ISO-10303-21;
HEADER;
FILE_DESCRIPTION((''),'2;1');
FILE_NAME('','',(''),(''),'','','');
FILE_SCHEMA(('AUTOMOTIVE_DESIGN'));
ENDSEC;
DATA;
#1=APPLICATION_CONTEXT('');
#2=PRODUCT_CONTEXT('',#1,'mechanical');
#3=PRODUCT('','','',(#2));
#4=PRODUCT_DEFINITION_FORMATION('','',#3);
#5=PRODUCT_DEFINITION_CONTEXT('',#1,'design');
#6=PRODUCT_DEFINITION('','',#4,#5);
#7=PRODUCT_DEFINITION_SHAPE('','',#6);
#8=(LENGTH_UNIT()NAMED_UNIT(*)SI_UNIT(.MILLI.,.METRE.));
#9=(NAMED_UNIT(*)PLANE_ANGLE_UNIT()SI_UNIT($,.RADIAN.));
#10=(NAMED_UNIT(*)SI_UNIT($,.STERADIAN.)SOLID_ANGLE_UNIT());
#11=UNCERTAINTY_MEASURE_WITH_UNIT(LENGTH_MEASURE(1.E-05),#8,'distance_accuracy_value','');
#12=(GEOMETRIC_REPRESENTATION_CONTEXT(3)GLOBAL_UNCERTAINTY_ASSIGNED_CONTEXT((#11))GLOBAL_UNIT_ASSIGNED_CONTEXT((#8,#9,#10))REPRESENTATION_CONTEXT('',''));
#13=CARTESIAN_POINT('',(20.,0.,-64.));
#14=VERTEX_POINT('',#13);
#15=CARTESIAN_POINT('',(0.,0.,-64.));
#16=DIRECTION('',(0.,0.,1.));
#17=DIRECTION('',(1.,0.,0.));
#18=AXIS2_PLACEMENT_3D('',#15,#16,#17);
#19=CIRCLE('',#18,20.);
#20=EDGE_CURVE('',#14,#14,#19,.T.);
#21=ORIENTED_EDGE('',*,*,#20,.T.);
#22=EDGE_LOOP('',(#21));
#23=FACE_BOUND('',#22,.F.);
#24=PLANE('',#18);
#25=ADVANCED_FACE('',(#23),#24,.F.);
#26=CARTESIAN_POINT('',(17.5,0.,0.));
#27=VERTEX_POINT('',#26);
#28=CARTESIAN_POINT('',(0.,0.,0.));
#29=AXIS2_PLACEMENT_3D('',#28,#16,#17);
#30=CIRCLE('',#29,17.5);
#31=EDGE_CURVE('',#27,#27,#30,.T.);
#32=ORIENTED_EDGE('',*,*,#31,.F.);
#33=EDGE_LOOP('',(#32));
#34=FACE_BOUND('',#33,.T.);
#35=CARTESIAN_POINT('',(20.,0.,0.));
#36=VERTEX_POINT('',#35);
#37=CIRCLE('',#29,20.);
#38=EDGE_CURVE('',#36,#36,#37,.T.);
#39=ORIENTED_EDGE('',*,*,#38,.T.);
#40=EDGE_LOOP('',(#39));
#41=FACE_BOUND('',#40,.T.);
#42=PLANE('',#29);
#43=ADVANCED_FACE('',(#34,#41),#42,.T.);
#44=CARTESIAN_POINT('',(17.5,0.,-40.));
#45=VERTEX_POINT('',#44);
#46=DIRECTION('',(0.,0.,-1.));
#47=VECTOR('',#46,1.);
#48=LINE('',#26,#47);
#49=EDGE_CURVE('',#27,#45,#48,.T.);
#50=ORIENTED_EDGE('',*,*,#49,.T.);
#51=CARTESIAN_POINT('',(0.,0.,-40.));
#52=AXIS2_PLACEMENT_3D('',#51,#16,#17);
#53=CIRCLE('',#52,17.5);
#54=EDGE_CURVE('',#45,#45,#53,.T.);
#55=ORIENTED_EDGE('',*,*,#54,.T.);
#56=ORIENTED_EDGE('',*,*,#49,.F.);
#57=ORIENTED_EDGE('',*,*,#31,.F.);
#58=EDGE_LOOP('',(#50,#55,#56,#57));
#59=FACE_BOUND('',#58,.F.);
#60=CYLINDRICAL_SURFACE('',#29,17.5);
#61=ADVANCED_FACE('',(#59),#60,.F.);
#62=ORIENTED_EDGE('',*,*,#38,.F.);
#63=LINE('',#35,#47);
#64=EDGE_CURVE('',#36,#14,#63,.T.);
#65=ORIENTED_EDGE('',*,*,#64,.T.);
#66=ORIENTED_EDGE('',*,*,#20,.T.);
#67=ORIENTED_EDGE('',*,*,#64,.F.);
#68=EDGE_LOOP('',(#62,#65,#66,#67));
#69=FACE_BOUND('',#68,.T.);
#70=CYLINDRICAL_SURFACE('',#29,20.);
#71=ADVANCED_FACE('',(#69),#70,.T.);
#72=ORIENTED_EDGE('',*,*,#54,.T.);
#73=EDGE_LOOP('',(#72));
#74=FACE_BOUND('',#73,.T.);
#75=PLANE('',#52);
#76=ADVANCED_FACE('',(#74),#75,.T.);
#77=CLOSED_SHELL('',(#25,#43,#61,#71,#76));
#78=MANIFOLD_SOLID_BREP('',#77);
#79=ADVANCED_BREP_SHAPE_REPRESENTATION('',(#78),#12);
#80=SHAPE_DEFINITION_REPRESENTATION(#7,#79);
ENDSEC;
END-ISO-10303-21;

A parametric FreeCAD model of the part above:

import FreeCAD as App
import Part
import Sketcher
Q = App.Units.Quantity

doc = App.newDocument("Part")
body = doc.addObject("PartDesign::Body", "Body")

# Sketch on XY plane
sketch1 = doc.addObject("Sketcher::SketchObject", "Sketch")
body.addObject(sketch1)
sketch1.AttachmentSupport = (doc.XY_Plane, [""])
sketch1.MapMode = "FlatFace"
sketch1.addGeometry(Part.Circle(App.Vector(0, 0, 0), App.Vector(0, 0, 1), 20), False)
sketch1.addConstraint([
    Sketcher.Constraint("Coincident", 0, 3, -1, 1),
    Sketcher.Constraint("Diameter", 0, Q("40 mm")),
])
pad1 = doc.addObject("PartDesign::Pad", "Pad")
body.addObject(pad1)
pad1.Profile = sketch1
pad1.Length = 64
pad1.Reversed = True

# Sketch on XY plane
sketch2 = doc.addObject("Sketcher::SketchObject", "Sketch001")
body.addObject(sketch2)
sketch2.AttachmentSupport = (doc.XY_Plane, [""])
sketch2.MapMode = "FlatFace"
sketch2.addGeometry(Part.Circle(App.Vector(0, 0, 0), App.Vector(0, 0, 1), 18), False)
sketch2.addConstraint([
    Sketcher.Constraint("Coincident", 0, 3, -1, 1),
    Sketcher.Constraint("Diameter", 0, Q("35 mm")),
])
pocket1 = doc.addObject("PartDesign::Pocket", "Pocket")
body.addObject(pocket1)
pocket1.Profile = sketch2
pocket1.Length = 40

doc.recompute()
